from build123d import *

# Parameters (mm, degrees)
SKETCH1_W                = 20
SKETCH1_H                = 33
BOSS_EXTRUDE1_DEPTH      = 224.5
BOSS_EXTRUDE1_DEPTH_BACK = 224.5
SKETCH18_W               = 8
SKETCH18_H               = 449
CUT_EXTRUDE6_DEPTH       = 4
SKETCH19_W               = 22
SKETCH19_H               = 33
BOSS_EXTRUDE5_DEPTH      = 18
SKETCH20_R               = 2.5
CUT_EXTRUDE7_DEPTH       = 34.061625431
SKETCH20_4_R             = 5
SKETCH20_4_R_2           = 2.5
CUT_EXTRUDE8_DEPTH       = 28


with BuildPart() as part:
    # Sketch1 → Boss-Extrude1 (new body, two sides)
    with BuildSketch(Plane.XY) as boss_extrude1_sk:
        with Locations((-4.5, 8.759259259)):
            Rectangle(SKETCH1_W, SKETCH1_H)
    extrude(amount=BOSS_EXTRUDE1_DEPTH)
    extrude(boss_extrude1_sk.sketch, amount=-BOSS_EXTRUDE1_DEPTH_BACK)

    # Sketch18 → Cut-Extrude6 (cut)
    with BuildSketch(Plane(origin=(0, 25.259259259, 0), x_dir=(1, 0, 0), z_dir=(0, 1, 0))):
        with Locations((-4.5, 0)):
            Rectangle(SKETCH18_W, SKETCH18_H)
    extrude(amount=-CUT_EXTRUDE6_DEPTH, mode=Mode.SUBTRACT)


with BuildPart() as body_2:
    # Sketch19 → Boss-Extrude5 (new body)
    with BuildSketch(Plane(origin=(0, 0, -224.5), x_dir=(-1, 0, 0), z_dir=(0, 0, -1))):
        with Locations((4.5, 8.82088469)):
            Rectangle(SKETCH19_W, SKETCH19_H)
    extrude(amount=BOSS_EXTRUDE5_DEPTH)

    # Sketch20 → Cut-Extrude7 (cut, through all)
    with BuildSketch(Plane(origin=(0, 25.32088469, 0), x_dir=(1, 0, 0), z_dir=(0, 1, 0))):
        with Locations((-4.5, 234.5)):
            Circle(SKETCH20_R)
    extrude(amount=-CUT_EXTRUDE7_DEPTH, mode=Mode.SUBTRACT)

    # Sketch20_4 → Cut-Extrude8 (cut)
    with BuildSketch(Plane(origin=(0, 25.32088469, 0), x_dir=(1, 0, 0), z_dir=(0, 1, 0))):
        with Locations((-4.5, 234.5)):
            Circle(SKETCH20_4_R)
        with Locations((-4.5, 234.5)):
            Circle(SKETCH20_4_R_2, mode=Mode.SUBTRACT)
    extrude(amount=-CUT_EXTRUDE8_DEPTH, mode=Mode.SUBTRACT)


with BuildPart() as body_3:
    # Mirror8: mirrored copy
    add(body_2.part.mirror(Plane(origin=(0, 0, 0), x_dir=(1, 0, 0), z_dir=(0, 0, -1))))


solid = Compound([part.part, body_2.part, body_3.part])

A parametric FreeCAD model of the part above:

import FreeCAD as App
import Part
import Sketcher
from FreeCAD import Vector
Q = App.Units.Quantity


def add_polygon(sketch, points):
    """Adds a closed chain of lines whose ends are joined by coincident constraints."""
    first, n = sketch.GeometryCount, len(points)
    for a, b in zip(points, points[1:] + points[:1]):
        sketch.addGeometry(Part.LineSegment(App.Vector(*a, 0), App.Vector(*b, 0)), False)
    for i in range(n):
        sketch.addConstraint(Sketcher.Constraint("Coincident", first + i, 2, first + (i + 1) % n, 1))

doc = App.newDocument("Part")
body = doc.addObject("PartDesign::Body", "Body")

# Sketch on XY plane
sketch1 = body.newObject("Sketcher::SketchObject", "Sketch")
sketch1.AttachmentSupport = (doc.getObject("XY_Plane"), [""])
sketch1.MapMode = "FlatFace"
add_polygon(sketch1, [(-14, 25), (-14, -8), (6, -8), (6, 25)])  # lines 0-3
sketch1.addConstraint([
    Sketcher.Constraint("Vertical", 0),
    Sketcher.Constraint("Horizontal", 1),
    Sketcher.Constraint("Vertical", 2),
    Sketcher.Constraint("Horizontal", 3),
    Sketcher.Constraint("DistanceX", 1, 1, 1, 2, Q("20 mm")),
    Sketcher.Constraint("DistanceY", 0, 2, 0, 1, Q("33 mm")),
    Sketcher.Constraint("DistanceX", 0, 2, -1, 1, Q("14.5 mm")),
    Sketcher.Constraint("DistanceY", 0, 2, -1, 1, Q("7.740741 mm")),
])
pad1 = body.newObject("PartDesign::Pad", "Pad")
pad1.Profile = sketch1
pad1.Type = "TwoLengths"
pad1.Length = 224.5
pad1.Length2 = 224.5

# Sketch on XZ plane
sketch2 = body.newObject("Sketcher::SketchObject", "Sketch001")
sketch2.AttachmentSupport = (doc.getObject("XZ_Plane"), [""])
sketch2.MapMode = "FlatFace"
sketch2.AttachmentOffset = App.Placement(Vector(0, 0, -25.259259), App.Rotation())
add_polygon(sketch2, [(-8, -224), (-8, 224), (0, 224), (0, -224)])  # lines 0-3
sketch2.addConstraint([
    Sketcher.Constraint("Vertical", 0),
    Sketcher.Constraint("Horizontal", 1),
    Sketcher.Constraint("Vertical", 2),
    Sketcher.Constraint("Horizontal", 3),
    Sketcher.Constraint("DistanceX", 1, 1, 1, 2, Q("8 mm")),
    Sketcher.Constraint("DistanceY", 0, 1, 0, 2, Q("449 mm")),
    Sketcher.Constraint("DistanceX", 0, 2, -1, 1, Q("8.5 mm")),
    Sketcher.Constraint("DistanceY", -1, 1, 0, 2, Q("224.5 mm")),
])
pocket1 = body.newObject("PartDesign::Pocket", "Pocket")
pocket1.Profile = sketch2
pocket1.Length = 4
pocket1.Reversed = True
body2 = doc.addObject("PartDesign::Body", "Body001")

# Sketch on XY plane
sketch3 = body2.newObject("Sketcher::SketchObject", "Sketch002")
sketch3.AttachmentSupport = (doc.getObject("XY_Plane001"), [""])
sketch3.MapMode = "FlatFace"
sketch3.AttachmentOffset = App.Placement(Vector(0, 0, -224.5), App.Rotation())
add_polygon(sketch3, [(6, 25), (6, -8), (-16, -8), (-16, 25)])  # lines 0-3
sketch3.addConstraint([
    Sketcher.Constraint("Vertical", 0),
    Sketcher.Constraint("Horizontal", 1),
    Sketcher.Constraint("Vertical", 2),
    Sketcher.Constraint("Horizontal", 3),
    Sketcher.Constraint("DistanceX", 1, 2, 1, 1, Q("22 mm")),
    Sketcher.Constraint("DistanceY", 0, 2, 0, 1, Q("33 mm")),
    Sketcher.Constraint("DistanceX", -1, 1, 0, 2, Q("6.5 mm")),
    Sketcher.Constraint("DistanceY", 0, 2, -1, 1, Q("7.679115 mm")),
])
pad2 = body2.newObject("PartDesign::Pad", "Pad001")
pad2.Profile = sketch3
pad2.Length = 18
pad2.Reversed = True

# Sketch on XZ plane
sketch4 = body2.newObject("Sketcher::SketchObject", "Sketch003")
sketch4.AttachmentSupport = (doc.getObject("XZ_Plane001"), [""])
sketch4.MapMode = "FlatFace"
sketch4.AttachmentOffset = App.Placement(Vector(0, 0, -25.320885), App.Rotation())
sketch4.addGeometry(Part.Circle(Vector(-4.5, -234.5, 0), Vector(0, 0, 1), 2.5), False)
sketch4.addConstraint([
    Sketcher.Constraint("Diameter", 0, Q("5 mm")),
    Sketcher.Constraint("DistanceX", 0, 3, -1, 1, Q("4.5 mm")),
    Sketcher.Constraint("DistanceY", 0, 3, -1, 1, Q("234.5 mm")),
])
pocket2 = body2.newObject("PartDesign::Pocket", "Pocket001")
pocket2.Profile = sketch4
pocket2.Type = "ThroughAll"
pocket2.Reversed = True

# Sketch on XZ plane
sketch5 = body2.newObject("Sketcher::SketchObject", "Sketch004")
sketch5.AttachmentSupport = (doc.getObject("XZ_Plane001"), [""])
sketch5.MapMode = "FlatFace"
sketch5.AttachmentOffset = App.Placement(Vector(0, 0, -25.320885), App.Rotation())
sketch5.addGeometry([
    Part.Circle(Vector(-4.5, -234.5, 0), Vector(0, 0, 1), 5),
    Part.Circle(Vector(-4.5, -234.5, 0), Vector(0, 0, 1), 2.5),
], False)
sketch5.addConstraint([
    Sketcher.Constraint("Coincident", 1, 3, 0, 3),
    Sketcher.Constraint("Diameter", 0, Q("10 mm")),
    Sketcher.Constraint("Diameter", 1, Q("5 mm")),
    Sketcher.Constraint("DistanceX", 0, 3, -1, 1, Q("4.5 mm")),
    Sketcher.Constraint("DistanceY", 0, 3, -1, 1, Q("234.5 mm")),
])
pocket3 = body2.newObject("PartDesign::Pocket", "Pocket002")
pocket3.Profile = sketch5
pocket3.Length = 28
pocket3.Reversed = True
body3 = doc.addObject("PartDesign::Body", "Body002")
doc.recompute()

mirroring = doc.addObject("Part::Mirroring", "Mirroring")
mirroring.Source = body2
mirroring.Base = Vector(0, 0, 0)
mirroring.Normal = Vector(0, 0, -1)
body3.BaseFeature = mirroring
doc.recompute()
mirroring.Visibility = False

doc.recompute()
